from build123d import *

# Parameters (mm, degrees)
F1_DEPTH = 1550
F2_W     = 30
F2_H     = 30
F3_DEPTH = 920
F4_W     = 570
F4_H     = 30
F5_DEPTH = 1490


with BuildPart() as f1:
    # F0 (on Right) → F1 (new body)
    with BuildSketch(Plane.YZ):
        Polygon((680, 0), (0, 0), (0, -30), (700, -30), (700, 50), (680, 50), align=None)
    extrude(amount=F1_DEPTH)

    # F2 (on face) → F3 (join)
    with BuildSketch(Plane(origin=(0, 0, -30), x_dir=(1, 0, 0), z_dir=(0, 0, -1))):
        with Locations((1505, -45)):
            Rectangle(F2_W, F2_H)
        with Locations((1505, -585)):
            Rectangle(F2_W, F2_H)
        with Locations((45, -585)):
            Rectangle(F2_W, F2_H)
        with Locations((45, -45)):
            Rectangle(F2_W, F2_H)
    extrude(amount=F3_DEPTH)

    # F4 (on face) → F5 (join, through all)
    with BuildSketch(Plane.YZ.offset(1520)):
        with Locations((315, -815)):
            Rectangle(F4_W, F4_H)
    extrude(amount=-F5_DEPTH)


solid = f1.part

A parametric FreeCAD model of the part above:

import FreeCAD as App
import Part
import Sketcher

doc = App.newDocument("Part")
body = doc.addObject("PartDesign::Body", "Body")

# Sketch on YZ plane
sketch1 = body.newObject("Sketcher::SketchObject", "Sketch")
sketch1.AttachmentSupport = (doc.getObject("YZ_Plane"), [""])
sketch1.MapMode = "FlatFace"
sketch1.addGeometry([
    Part.LineSegment(App.Vector(680, 0, 0), App.Vector(0, 0, 0)),  # 0
    Part.LineSegment(App.Vector(0, 0, 0), App.Vector(0, -30, 0)),  # 1
    Part.LineSegment(App.Vector(0, -30, 0), App.Vector(700, -30, 0)),  # 2
    Part.LineSegment(App.Vector(700, -30, 0), App.Vector(700, 50, 0)),  # 3
    Part.LineSegment(App.Vector(700, 50, 0), App.Vector(680, 50, 0)),  # 4
    Part.LineSegment(App.Vector(680, 50, 0), App.Vector(680, 0, 0)),  # 5
], False)
sketch1.addConstraint([
    Sketcher.Constraint("Coincident", 0, 2, 1, 1),
    Sketcher.Constraint("Coincident", 1, 2, 2, 1),
    Sketcher.Constraint("Coincident", 2, 2, 3, 1),
    Sketcher.Constraint("Coincident", 3, 2, 4, 1),
    Sketcher.Constraint("Coincident", 4, 2, 5, 1),
    Sketcher.Constraint("Coincident", 5, 2, 0, 1),
    Sketcher.Constraint("Horizontal", 0),
    Sketcher.Constraint("Vertical", 1),
    Sketcher.Constraint("Horizontal", 2),
    Sketcher.Constraint("Vertical", 3),
    Sketcher.Constraint("Horizontal", 4),
    Sketcher.Constraint("Vertical", 5),
    Sketcher.Constraint("Coincident", 0, 2, -1, 1),
    Sketcher.Constraint("DistanceX", 0, 2, 0, 1, 680.0),
    Sketcher.Constraint("DistanceX", 2, 1, 2, 2, 700.0),
    Sketcher.Constraint("DistanceY", 1, 2, 1, 1, 30.0),
    Sketcher.Constraint("DistanceY", 3, 1, 3, 2, 80.0),
])
pad1 = body.newObject("PartDesign::Pad", "Pad")
pad1.Profile = sketch1
pad1.Length = 1550

# Sketch on XY plane
sketch2 = body.newObject("Sketcher::SketchObject", "Sketch001")
sketch2.AttachmentSupport = (doc.getObject("XY_Plane"), [""])
sketch2.MapMode = "FlatFace"
sketch2.AttachmentOffset = App.Placement(App.Vector(0, 0, -30), App.Rotation())
sketch2.addGeometry([
    Part.LineSegment(App.Vector(1490, 30, 0), App.Vector(1490, 60, 0)),  # 0
    Part.LineSegment(App.Vector(1490, 60, 0), App.Vector(1520, 60, 0)),  # 1
    Part.LineSegment(App.Vector(1520, 60, 0), App.Vector(1520, 30, 0)),  # 2
    Part.LineSegment(App.Vector(1520, 30, 0), App.Vector(1490, 30, 0)),  # 3
    Part.LineSegment(App.Vector(1490, 570, 0), App.Vector(1490, 600, 0)),  # 4
    Part.LineSegment(App.Vector(1490, 600, 0), App.Vector(1520, 600, 0)),  # 5
    Part.LineSegment(App.Vector(1520, 600, 0), App.Vector(1520, 570, 0)),  # 6
    Part.LineSegment(App.Vector(1520, 570, 0), App.Vector(1490, 570, 0)),  # 7
    Part.LineSegment(App.Vector(30, 570, 0), App.Vector(30, 600, 0)),  # 8
    Part.LineSegment(App.Vector(30, 600, 0), App.Vector(60, 600, 0)),  # 9
    Part.LineSegment(App.Vector(60, 600, 0), App.Vector(60, 570, 0)),  # 10
    Part.LineSegment(App.Vector(60, 570, 0), App.Vector(30, 570, 0)),  # 11
    Part.LineSegment(App.Vector(30, 30, 0), App.Vector(30, 60, 0)),  # 12
    Part.LineSegment(App.Vector(30, 60, 0), App.Vector(60, 60, 0)),  # 13
    Part.LineSegment(App.Vector(60, 60, 0), App.Vector(60, 30, 0)),  # 14
    Part.LineSegment(App.Vector(60, 30, 0), App.Vector(30, 30, 0)),  # 15
], False)
sketch2.addConstraint([
    Sketcher.Constraint("Coincident", 0, 2, 1, 1),
    Sketcher.Constraint("Coincident", 1, 2, 2, 1),
    Sketcher.Constraint("Coincident", 2, 2, 3, 1),
    Sketcher.Constraint("Coincident", 3, 2, 0, 1),
    Sketcher.Constraint("Coincident", 4, 2, 5, 1),
    Sketcher.Constraint("Coincident", 5, 2, 6, 1),
    Sketcher.Constraint("Coincident", 6, 2, 7, 1),
    Sketcher.Constraint("Coincident", 7, 2, 4, 1),
    Sketcher.Constraint("Coincident", 8, 2, 9, 1),
    Sketcher.Constraint("Coincident", 9, 2, 10, 1),
    Sketcher.Constraint("Coincident", 10, 2, 11, 1),
    Sketcher.Constraint("Coincident", 11, 2, 8, 1),
    Sketcher.Constraint("Coincident", 12, 2, 13, 1),
    Sketcher.Constraint("Coincident", 13, 2, 14, 1),
    Sketcher.Constraint("Coincident", 14, 2, 15, 1),
    Sketcher.Constraint("Coincident", 15, 2, 12, 1),
    Sketcher.Constraint("Vertical", 0),
    Sketcher.Constraint("Horizontal", 1),
    Sketcher.Constraint("Vertical", 2),
    Sketcher.Constraint("Horizontal", 3),
    Sketcher.Constraint("Vertical", 4),
    Sketcher.Constraint("Horizontal", 5),
    Sketcher.Constraint("Vertical", 6),
    Sketcher.Constraint("Horizontal", 7),
    Sketcher.Constraint("Vertical", 8),
    Sketcher.Constraint("Horizontal", 9),
    Sketcher.Constraint("Vertical", 10),
    Sketcher.Constraint("Horizontal", 11),
    Sketcher.Constraint("Vertical", 12),
    Sketcher.Constraint("Horizontal", 13),
    Sketcher.Constraint("Vertical", 14),
    Sketcher.Constraint("Horizontal", 15),
    Sketcher.Constraint("Horizontal", 5, 2, 8, 2),
    Sketcher.Constraint("Horizontal", 7, 2, 10, 2),
    Sketcher.Constraint("Horizontal", 1, 2, 12, 2),
    Sketcher.Constraint("Horizontal", 3, 2, 14, 2),
    Sketcher.Constraint("Vertical", 3, 2, 4, 2),
    Sketcher.Constraint("Vertical", 2, 2, 5, 2),
    Sketcher.Constraint("Vertical", 11, 2, 12, 2),
    Sketcher.Constraint("Vertical", 10, 2, 13, 2),
    Sketcher.Constraint("Equal", 7, 9),
    Sketcher.Constraint("Equal", 15, 0),
    Sketcher.Constraint("Equal", 2, 4),
    Sketcher.Constraint("DistanceX", 1, 1, 1, 2, 30.0),
    Sketcher.Constraint("DistanceX", -1, 1, 0, 2, 1490.0),
    Sketcher.Constraint("DistanceY", -1, 1, 0, 2, 60.0),
    Sketcher.Constraint("DistanceY", -1, 1, 4, 2, 600.0),
    Sketcher.Constraint("DistanceX", -1, 1, 8, 2, 30.0),
])
pad2 = body.newObject("PartDesign::Pad", "Pad001")
pad2.Profile = sketch2
pad2.Length = 920
pad2.Reversed = True

# Sketch on YZ plane
sketch3 = body.newObject("Sketcher::SketchObject", "Sketch002")
sketch3.AttachmentSupport = (doc.getObject("YZ_Plane"), [""])
sketch3.MapMode = "FlatFace"
sketch3.AttachmentOffset = App.Placement(App.Vector(0, 0, 1520), App.Rotation())
sketch3.addGeometry([
    Part.LineSegment(App.Vector(30, -800, 0), App.Vector(30, -830, 0)),
    Part.LineSegment(App.Vector(30, -830, 0), App.Vector(600, -830, 0)),
    Part.LineSegment(App.Vector(600, -830, 0), App.Vector(600, -800, 0)),
    Part.LineSegment(App.Vector(600, -800, 0), App.Vector(30, -800, 0)),
], False)
sketch3.addConstraint([
    Sketcher.Constraint("Coincident", 0, 2, 1, 1),
    Sketcher.Constraint("Coincident", 1, 2, 2, 1),
    Sketcher.Constraint("Coincident", 2, 2, 3, 1),
    Sketcher.Constraint("Coincident", 3, 2, 0, 1),
    Sketcher.Constraint("Vertical", 0),
    Sketcher.Constraint("Horizontal", 1),
    Sketcher.Constraint("Vertical", 2),
    Sketcher.Constraint("Horizontal", 3),
    Sketcher.Constraint("DistanceX", 1, 1, 1, 2, 570.0),
    Sketcher.Constraint("DistanceY", 0, 2, 0, 1, 30.0),
    Sketcher.Constraint("DistanceX", -1, 1, 0, 2, 30.0),
    Sketcher.Constraint("DistanceY", 0, 2, -1, 1, 830.0),
])
pad3 = body.newObject("PartDesign::Pad", "Pad002")
pad3.Profile = sketch3
pad3.Length = 1490
pad3.Reversed = True

doc.recompute()
